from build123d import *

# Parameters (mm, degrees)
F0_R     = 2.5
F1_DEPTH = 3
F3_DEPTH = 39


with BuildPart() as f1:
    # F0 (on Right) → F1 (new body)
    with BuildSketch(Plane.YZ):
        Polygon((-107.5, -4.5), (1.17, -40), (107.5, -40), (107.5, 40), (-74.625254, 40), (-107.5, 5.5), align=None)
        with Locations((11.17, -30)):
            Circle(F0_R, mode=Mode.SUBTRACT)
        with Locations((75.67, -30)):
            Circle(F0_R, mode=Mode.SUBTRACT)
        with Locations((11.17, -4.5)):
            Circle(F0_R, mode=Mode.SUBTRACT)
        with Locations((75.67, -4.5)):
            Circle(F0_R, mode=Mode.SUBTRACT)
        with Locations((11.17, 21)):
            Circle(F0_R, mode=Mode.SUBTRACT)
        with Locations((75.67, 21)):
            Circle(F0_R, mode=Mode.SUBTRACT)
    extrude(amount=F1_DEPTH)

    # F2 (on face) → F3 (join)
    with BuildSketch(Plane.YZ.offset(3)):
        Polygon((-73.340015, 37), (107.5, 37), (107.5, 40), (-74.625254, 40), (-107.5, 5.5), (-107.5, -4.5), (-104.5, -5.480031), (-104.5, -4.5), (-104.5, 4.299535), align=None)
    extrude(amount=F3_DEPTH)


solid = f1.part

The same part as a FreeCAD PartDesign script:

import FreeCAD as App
import Part
import Sketcher

V = App.Vector

doc = App.newDocument("Part")
body = doc.addObject("PartDesign::Body", "Body")

# Sketch on YZ plane
sketch1 = body.newObject("Sketcher::SketchObject", "Sketch")
sketch1.AttachmentSupport = (doc.getObject("YZ_Plane"), [""])
sketch1.MapMode = "FlatFace"
sketch1.addGeometry(Part.LineSegment(V(-107.5, -4.5, 0), V(1.17, -40, 0)), False)
sketch1.addGeometry(Part.LineSegment(V(1.17, -40, 0), V(107.5, -40, 0)), False)
sketch1.addGeometry(Part.LineSegment(V(107.5, -40, 0), V(107.5, 40, 0)), False)
sketch1.addGeometry(Part.LineSegment(V(107.5, 40, 0), V(-74.625254, 40, 0)), False)
sketch1.addGeometry(Part.LineSegment(V(-74.625254, 40, 0), V(-107.5, 5.5, 0)), False)
sketch1.addGeometry(Part.LineSegment(V(-107.5, 5.5, 0), V(-107.5, -4.5, 0)), False)
sketch1.addGeometry(Part.Circle(V(11.17, -30, 0), V(0, 0, 1), 2.5), False)
sketch1.addGeometry(Part.Circle(V(75.67, -30, 0), V(0, 0, 1), 2.5), False)
sketch1.addGeometry(Part.Circle(V(11.17, -4.5, 0), V(0, 0, 1), 2.5), False)
sketch1.addGeometry(Part.Circle(V(11.17, 21, 0), V(0, 0, 1), 2.5), False)
sketch1.addGeometry(Part.Circle(V(75.67, -4.5, 0), V(0, 0, 1), 2.5), False)
sketch1.addGeometry(Part.Circle(V(75.67, 21, 0), V(0, 0, 1), 2.5), False)
sketch1.addConstraint(Sketcher.Constraint("Coincident", 0, 2, 1, 1))
sketch1.addConstraint(Sketcher.Constraint("Coincident", 1, 2, 2, 1))
sketch1.addConstraint(Sketcher.Constraint("Coincident", 2, 2, 3, 1))
sketch1.addConstraint(Sketcher.Constraint("Coincident", 3, 2, 4, 1))
sketch1.addConstraint(Sketcher.Constraint("Coincident", 4, 2, 5, 1))
sketch1.addConstraint(Sketcher.Constraint("Coincident", 5, 2, 0, 1))
sketch1.addConstraint(Sketcher.Constraint("Horizontal", 1))
sketch1.addConstraint(Sketcher.Constraint("Vertical", 2))
sketch1.addConstraint(Sketcher.Constraint("Horizontal", 3))
sketch1.addConstraint(Sketcher.Constraint("Vertical", 5))
sketch1.addConstraint(Sketcher.Constraint("Equal", 6, 7))
sketch1.addConstraint(Sketcher.Constraint("Equal", 7, 8))
sketch1.addConstraint(Sketcher.Constraint("Equal", 8, 9))
sketch1.addConstraint(Sketcher.Constraint("Equal", 9, 10))
sketch1.addConstraint(Sketcher.Constraint("Equal", 10, 11))
sketch1.addConstraint(Sketcher.Constraint("Horizontal", 6, 3, 7, 3))
sketch1.addConstraint(Sketcher.Constraint("Horizontal", 8, 3, 10, 3))
sketch1.addConstraint(Sketcher.Constraint("Horizontal", 9, 3, 11, 3))
sketch1.addConstraint(Sketcher.Constraint("Horizontal", 10, 3, 5, 2))
sketch1.addConstraint(Sketcher.Constraint("Vertical", 6, 3, 8, 3))
sketch1.addConstraint(Sketcher.Constraint("Vertical", 8, 3, 9, 3))
sketch1.addConstraint(Sketcher.Constraint("Vertical", 7, 3, 10, 3))
sketch1.addConstraint(Sketcher.Constraint("Vertical", 10, 3, 11, 3))
sketch1.addConstraint(Sketcher.Constraint("Diameter", 6, 5.0))
sketch1.addConstraint(Sketcher.Constraint("DistanceY", 2, 1, 2, 2, 80.0))
sketch1.addConstraint(Sketcher.Constraint("DistanceY", 5, 2, 5, 1, 10.0))
sketch1.addConstraint(Sketcher.Constraint("DistanceY", 6, 3, -1, 1, 30.0))
sketch1.addConstraint(Sketcher.Constraint("DistanceY", -1, 1, 9, 3, 21.0))
sketch1.addConstraint(Sketcher.Constraint("DistanceY", 0, 2, -1, 1, 40.0))
sketch1.addConstraint(Sketcher.Constraint("DistanceX", 0, 2, 6, 3, 10.0))
sketch1.addConstraint(Sketcher.Constraint("DistanceX", 1, 1, 1, 2, 106.33))
sketch1.addConstraint(Sketcher.Constraint("DistanceY", 8, 3, -1, 1, 4.5))
sketch1.addConstraint(Sketcher.Constraint("DistanceX", -1, 1, 1, 2, 107.5))
sketch1.addConstraint(Sketcher.Constraint("DistanceX", 4, 2, -1, 1, 107.5))
sketch1.addConstraint(Sketcher.Constraint("DistanceX", 6, 3, 7, 3, 64.5))
sketch1.addConstraint(Sketcher.Constraint("Distance", 4, 47.654999))
pad1 = body.newObject("PartDesign::Pad", "Pad")
pad1.Profile = sketch1
pad1.Length = 3

# Sketch on YZ plane
sketch2 = body.newObject("Sketcher::SketchObject", "Sketch001")
sketch2.AttachmentSupport = (doc.getObject("YZ_Plane"), [""])
sketch2.MapMode = "FlatFace"
sketch2.AttachmentOffset = App.Placement(V(0, 0, 3), App.Rotation())
sketch2.addGeometry(Part.LineSegment(V(-73.340015, 37, 0), V(107.5, 37, 0)), False)
sketch2.addGeometry(Part.LineSegment(V(107.5, 37, 0), V(107.5, 40, 0)), False)
sketch2.addGeometry(Part.LineSegment(V(107.5, 40, 0), V(-74.625254, 40, 0)), False)
sketch2.addGeometry(Part.LineSegment(V(-74.625254, 40, 0), V(-107.5, 5.5, 0)), False)
sketch2.addGeometry(Part.LineSegment(V(-107.5, 5.5, 0), V(-107.5, -4.5, 0)), False)
sketch2.addGeometry(Part.LineSegment(V(-107.5, -4.5, 0), V(-104.5, -5.480031, 0)), False)
sketch2.addGeometry(Part.LineSegment(V(-104.5, -5.480031, 0), V(-104.5, 4.299535, 0)), False)
sketch2.addGeometry(Part.LineSegment(V(-104.5, 4.299535, 0), V(-73.340015, 37, 0)), False)
sketch2.addConstraint(Sketcher.Constraint("Coincident", 0, 2, 1, 1))
sketch2.addConstraint(Sketcher.Constraint("Coincident", 1, 2, 2, 1))
sketch2.addConstraint(Sketcher.Constraint("Coincident", 2, 2, 3, 1))
sketch2.addConstraint(Sketcher.Constraint("Coincident", 3, 2, 4, 1))
sketch2.addConstraint(Sketcher.Constraint("Coincident", 4, 2, 5, 1))
sketch2.addConstraint(Sketcher.Constraint("Coincident", 5, 2, 6, 1))
sketch2.addConstraint(Sketcher.Constraint("Coincident", 6, 2, 7, 1))
sketch2.addConstraint(Sketcher.Constraint("Coincident", 7, 2, 0, 1))
sketch2.addConstraint(Sketcher.Constraint("Horizontal", 0))
sketch2.addConstraint(Sketcher.Constraint("Vertical", 1))
sketch2.addConstraint(Sketcher.Constraint("Horizontal", 2))
sketch2.addConstraint(Sketcher.Constraint("Vertical", 4))
sketch2.addConstraint(Sketcher.Constraint("Vertical", 6))
sketch2.addConstraint(Sketcher.Constraint("Parallel", 3, 7))
sketch2.addConstraint(Sketcher.Constraint("DistanceY", 1, 1, 1, 2, 3.0))
sketch2.addConstraint(Sketcher.Constraint("DistanceY", 4, 2, 4, 1, 10.0))
sketch2.addConstraint(Sketcher.Constraint("DistanceY", -1, 1, 0, 2, 37.0))
sketch2.addConstraint(Sketcher.Constraint("DistanceX", 3, 2, 0, 2, 215.0))
sketch2.addConstraint(Sketcher.Constraint("DistanceX", 4, 2, 5, 2, 3.0))
sketch2.addConstraint(Sketcher.Constraint("DistanceX", -1, 1, 0, 2, 107.5))
sketch2.addConstraint(Sketcher.Constraint("DistanceY", -1, 1, 3, 2, 5.5))
sketch2.addConstraint(Sketcher.Constraint("Distance", 3, 47.654999))
sketch2.addConstraint(Sketcher.Constraint("Distance", 5, 3.15602))
sketch2.addConstraint(Sketcher.Constraint("DistanceX", 0, 1, 0, 2, 180.840015))
pad2 = body.newObject("PartDesign::Pad", "Pad001")
pad2.Profile = sketch2
pad2.Length = 39

doc.recompute()
